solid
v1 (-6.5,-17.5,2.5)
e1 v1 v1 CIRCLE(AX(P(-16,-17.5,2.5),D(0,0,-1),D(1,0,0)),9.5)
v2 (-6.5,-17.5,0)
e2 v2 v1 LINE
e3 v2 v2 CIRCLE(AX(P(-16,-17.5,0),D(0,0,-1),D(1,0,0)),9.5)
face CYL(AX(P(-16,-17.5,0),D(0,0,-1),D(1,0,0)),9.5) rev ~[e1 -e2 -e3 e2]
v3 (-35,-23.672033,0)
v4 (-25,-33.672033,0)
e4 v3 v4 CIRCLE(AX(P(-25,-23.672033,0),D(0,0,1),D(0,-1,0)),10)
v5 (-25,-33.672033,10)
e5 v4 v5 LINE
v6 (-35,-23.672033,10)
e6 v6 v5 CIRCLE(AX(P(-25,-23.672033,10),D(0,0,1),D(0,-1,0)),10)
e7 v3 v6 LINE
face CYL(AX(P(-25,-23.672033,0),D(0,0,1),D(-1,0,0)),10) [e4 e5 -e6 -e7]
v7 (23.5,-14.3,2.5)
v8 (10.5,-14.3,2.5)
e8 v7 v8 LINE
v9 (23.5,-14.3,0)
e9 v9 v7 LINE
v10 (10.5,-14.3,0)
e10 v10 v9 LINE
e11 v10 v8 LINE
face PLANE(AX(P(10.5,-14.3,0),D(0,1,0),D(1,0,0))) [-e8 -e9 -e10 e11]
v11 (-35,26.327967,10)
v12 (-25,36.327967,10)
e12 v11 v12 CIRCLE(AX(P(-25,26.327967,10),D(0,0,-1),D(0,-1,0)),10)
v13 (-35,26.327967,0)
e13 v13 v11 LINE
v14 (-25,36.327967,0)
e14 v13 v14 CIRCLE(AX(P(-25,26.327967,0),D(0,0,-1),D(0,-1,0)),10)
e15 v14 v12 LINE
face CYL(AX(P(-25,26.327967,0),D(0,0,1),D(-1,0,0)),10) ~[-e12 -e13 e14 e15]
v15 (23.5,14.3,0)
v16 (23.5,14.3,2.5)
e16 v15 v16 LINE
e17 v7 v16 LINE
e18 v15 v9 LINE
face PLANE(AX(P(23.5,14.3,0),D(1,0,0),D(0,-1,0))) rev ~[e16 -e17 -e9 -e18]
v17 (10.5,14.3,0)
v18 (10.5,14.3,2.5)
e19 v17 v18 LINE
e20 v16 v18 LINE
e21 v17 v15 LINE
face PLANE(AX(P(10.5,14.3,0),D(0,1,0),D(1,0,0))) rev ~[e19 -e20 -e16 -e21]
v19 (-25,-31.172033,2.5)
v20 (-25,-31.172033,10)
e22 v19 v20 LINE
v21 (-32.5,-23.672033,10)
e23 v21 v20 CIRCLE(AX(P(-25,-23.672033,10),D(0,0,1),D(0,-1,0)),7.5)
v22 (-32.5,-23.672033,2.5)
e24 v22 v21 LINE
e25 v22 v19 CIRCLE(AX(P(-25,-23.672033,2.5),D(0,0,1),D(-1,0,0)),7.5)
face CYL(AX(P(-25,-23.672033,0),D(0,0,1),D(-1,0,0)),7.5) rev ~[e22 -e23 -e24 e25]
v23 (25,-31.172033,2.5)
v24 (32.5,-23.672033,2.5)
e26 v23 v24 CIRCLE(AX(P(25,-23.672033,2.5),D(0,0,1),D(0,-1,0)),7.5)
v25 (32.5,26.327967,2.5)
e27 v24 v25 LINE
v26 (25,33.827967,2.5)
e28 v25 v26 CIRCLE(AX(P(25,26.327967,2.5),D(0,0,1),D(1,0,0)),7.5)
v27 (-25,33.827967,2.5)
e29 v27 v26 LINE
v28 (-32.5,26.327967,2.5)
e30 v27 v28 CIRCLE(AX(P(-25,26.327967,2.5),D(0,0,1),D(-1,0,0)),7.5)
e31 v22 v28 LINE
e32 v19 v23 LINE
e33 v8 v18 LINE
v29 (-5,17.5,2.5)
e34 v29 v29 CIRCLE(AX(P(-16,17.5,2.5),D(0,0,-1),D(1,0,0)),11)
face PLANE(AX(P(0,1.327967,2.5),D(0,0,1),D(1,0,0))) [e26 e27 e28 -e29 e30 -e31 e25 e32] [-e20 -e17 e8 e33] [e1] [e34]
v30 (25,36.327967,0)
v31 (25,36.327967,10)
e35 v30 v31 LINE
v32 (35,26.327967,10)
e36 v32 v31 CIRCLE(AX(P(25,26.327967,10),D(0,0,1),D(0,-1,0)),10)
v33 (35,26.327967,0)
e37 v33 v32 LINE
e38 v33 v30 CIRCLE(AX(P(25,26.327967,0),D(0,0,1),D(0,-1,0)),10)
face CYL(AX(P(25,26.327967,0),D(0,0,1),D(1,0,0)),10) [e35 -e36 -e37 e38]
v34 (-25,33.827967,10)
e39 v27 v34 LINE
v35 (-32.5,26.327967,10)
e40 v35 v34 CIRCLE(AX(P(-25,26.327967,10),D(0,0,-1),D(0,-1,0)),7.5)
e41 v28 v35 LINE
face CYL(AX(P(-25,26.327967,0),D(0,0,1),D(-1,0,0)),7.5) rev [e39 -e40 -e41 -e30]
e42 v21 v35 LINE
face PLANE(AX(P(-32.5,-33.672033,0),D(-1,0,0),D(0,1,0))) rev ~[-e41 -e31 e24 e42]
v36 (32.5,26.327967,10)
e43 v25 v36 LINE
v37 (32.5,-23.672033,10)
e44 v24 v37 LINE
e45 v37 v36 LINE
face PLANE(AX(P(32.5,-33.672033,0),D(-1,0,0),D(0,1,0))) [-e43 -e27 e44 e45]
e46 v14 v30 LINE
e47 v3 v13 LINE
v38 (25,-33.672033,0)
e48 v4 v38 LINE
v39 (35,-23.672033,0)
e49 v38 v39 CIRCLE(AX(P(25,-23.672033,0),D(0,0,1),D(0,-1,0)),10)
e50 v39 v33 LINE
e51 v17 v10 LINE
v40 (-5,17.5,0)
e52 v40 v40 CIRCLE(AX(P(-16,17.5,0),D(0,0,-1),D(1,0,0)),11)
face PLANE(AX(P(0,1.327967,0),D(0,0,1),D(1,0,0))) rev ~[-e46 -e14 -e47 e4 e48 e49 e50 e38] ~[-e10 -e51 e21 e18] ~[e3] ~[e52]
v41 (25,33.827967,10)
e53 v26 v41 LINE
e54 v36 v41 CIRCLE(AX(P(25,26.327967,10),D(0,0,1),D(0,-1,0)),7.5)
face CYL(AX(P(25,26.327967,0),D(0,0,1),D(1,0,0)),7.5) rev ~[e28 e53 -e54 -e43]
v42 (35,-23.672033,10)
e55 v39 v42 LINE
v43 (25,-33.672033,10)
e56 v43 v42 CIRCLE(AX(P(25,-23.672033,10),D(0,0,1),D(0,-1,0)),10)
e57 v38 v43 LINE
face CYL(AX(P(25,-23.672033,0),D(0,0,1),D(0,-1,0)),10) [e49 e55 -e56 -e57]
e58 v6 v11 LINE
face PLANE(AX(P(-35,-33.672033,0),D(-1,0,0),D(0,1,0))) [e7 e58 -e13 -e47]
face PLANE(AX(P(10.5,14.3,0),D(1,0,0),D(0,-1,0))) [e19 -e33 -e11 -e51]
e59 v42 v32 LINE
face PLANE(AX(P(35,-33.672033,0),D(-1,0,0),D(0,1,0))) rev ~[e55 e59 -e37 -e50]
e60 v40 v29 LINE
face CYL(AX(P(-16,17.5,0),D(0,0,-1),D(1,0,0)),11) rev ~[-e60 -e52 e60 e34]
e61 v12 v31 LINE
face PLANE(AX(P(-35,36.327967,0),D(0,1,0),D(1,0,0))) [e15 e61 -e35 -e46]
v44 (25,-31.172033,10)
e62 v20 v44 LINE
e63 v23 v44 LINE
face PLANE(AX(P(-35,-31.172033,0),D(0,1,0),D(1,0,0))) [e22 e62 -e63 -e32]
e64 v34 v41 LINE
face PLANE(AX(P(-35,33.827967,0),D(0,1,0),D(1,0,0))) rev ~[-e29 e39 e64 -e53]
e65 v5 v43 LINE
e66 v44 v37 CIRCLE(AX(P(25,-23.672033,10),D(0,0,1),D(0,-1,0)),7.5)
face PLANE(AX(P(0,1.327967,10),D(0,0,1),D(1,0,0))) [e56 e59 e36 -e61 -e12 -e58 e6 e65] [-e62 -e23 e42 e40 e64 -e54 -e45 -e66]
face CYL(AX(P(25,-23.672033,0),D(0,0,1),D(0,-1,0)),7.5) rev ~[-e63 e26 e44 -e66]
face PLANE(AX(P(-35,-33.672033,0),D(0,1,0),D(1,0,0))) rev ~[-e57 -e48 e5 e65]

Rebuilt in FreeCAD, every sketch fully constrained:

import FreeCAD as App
import Part
import Sketcher
Q = App.Units.Quantity


def edges_at(feature, points):
    """Names of the edges that pass closest to the given points."""
    edges = feature.Shape.Edges
    near = lambda p: min(range(len(edges)), key=lambda i: edges[i].distToShape(Part.Vertex(*p))[0])
    return sorted({f"Edge{near(p) + 1}" for p in points})


def faces_at(feature, points):
    """Names of the faces that lie closest to the given points."""
    faces = feature.Shape.Faces
    near = lambda p: min(range(len(faces)), key=lambda i: faces[i].distToShape(Part.Vertex(*p))[0])
    return sorted({f"Face{near(p) + 1}" for p in points})

doc = App.newDocument("Part")
params = doc.addObject("Spreadsheet::Sheet", "Params")
for row, (alias, value) in enumerate([
    ("sketch1_width", "70 mm"),
    ("pad1_length", "10 mm"),
    ("fillet_radius", "10 mm"),
    ("thickness_wall", "2.5 mm"),
    ("sketch2_diameter", "22 mm"),
    ("sketch2_diameter2", "19 mm"),
    ("sketch2_width", "13 mm"),
    ("sketch2_height", "28.6 mm"),
    ("pocket1_length", "25 mm"),
], start=1):
    params.set(f"A{row}", alias)
    params.set(f"B{row}", "=" + value)
    params.setAlias(f"B{row}", alias)

body = doc.addObject("PartDesign::Body", "Body")

sketch1 = body.newObject("Sketcher::SketchObject", "Sketch")
sketch1.AttachmentSupport = (doc.getObject("XY_Plane"), [""])
sketch1.MapMode = "FlatFace"
sketch1.addGeometry([
    Part.LineSegment(App.Vector(-35, 36, 0), App.Vector(-35, -34, 0)),
    Part.LineSegment(App.Vector(-35, -34, 0), App.Vector(35, -34, 0)),
    Part.LineSegment(App.Vector(35, -34, 0), App.Vector(35, 36, 0)),
    Part.LineSegment(App.Vector(35, 36, 0), App.Vector(-35, 36, 0)),
], False)
sketch1.addConstraint([
    Sketcher.Constraint("Coincident", 0, 2, 1, 1),
    Sketcher.Constraint("Coincident", 1, 2, 2, 1),
    Sketcher.Constraint("Coincident", 2, 2, 3, 1),
    Sketcher.Constraint("Coincident", 3, 2, 0, 1),
    Sketcher.Constraint("Vertical", 0),
    Sketcher.Constraint("Horizontal", 1),
    Sketcher.Constraint("Vertical", 2),
    Sketcher.Constraint("Horizontal", 3),
    Sketcher.Constraint("Equal", 3, 0),
    Sketcher.Constraint("DistanceX", 1, 1, 1, 2, Q("70 mm")),
    Sketcher.Constraint("DistanceX", 0, 2, -1, 1, Q("35 mm")),
    Sketcher.Constraint("DistanceY", 0, 2, -1, 1, Q("33.672033 mm")),
])
sketch1.setExpression("Constraints[9]", "Params.sketch1_width")
pad1 = body.newObject("PartDesign::Pad", "Pad")
pad1.Profile = sketch1
pad1.setExpression("Length", "Params.pad1_length")
doc.recompute()

fillet = body.newObject("PartDesign::Fillet", "Fillet")
fillet.Base = (pad1, edges_at(pad1, [
    (35, 36.328, 5),
    (35, -33.672, 5),
    (-35, 36.328, 5),
    (-35, -33.672, 5),
]))
fillet.setExpression("Radius", "Params.fillet_radius")
doc.recompute()

thickness = body.newObject("PartDesign::Thickness", "Thickness")
thickness.Base = (fillet, faces_at(fillet, [(0, 1.328, 10)]))
thickness.setExpression("Value", "Params.thickness_wall")
thickness.Reversed = True
thickness.Join = "Arc"

sketch2 = body.newObject("Sketcher::SketchObject", "Sketch001")
sketch2.AttachmentSupport = (doc.getObject("XY_Plane"), [""])
sketch2.MapMode = "FlatFace"
sketch2.addGeometry([
    Part.LineSegment(App.Vector(10, -14, 0), App.Vector(10, 14, 0)),
    Part.LineSegment(App.Vector(10, 14, 0), App.Vector(24, 14, 0)),
    Part.LineSegment(App.Vector(24, 14, 0), App.Vector(24, -14, 0)),
    Part.LineSegment(App.Vector(24, -14, 0), App.Vector(10, -14, 0)),
    Part.Circle(App.Vector(-16, 18, 0), App.Vector(0, 0, 1), 11),
    Part.Circle(App.Vector(-16, -18, 0), App.Vector(0, 0, 1), 10),
], False)
sketch2.addConstraint([
    Sketcher.Constraint("Coincident", 0, 2, 1, 1),
    Sketcher.Constraint("Coincident", 1, 2, 2, 1),
    Sketcher.Constraint("Coincident", 2, 2, 3, 1),
    Sketcher.Constraint("Coincident", 3, 2, 0, 1),
    Sketcher.Constraint("Vertical", 0),
    Sketcher.Constraint("Horizontal", 1),
    Sketcher.Constraint("Vertical", 2),
    Sketcher.Constraint("Horizontal", 3),
    Sketcher.Constraint("Symmetric", 4, 3, 5, 3, -1),
    Sketcher.Constraint("Diameter", 4, Q("22 mm")),
    Sketcher.Constraint("Diameter", 5, Q("19 mm")),
    Sketcher.Constraint("DistanceX", 1, 1, 1, 2, Q("13 mm")),
    Sketcher.Constraint("DistanceY", 0, 1, 0, 2, Q("28.6 mm")),
    Sketcher.Constraint("DistanceX", 4, 3, -1, 1, Q("16 mm")),
    Sketcher.Constraint("DistanceY", 5, 3, 4, 3, Q("35 mm")),
    Sketcher.Constraint("DistanceX", -1, 1, 0, 2, Q("10.5 mm")),
    Sketcher.Constraint("DistanceY", -1, 1, 0, 2, Q("14.3 mm")),
])
sketch2.setExpression("Constraints[9]", "Params.sketch2_diameter")
sketch2.setExpression("Constraints[10]", "Params.sketch2_diameter2")
sketch2.setExpression("Constraints[11]", "Params.sketch2_width")
sketch2.setExpression("Constraints[12]", "Params.sketch2_height")
pocket1 = body.newObject("PartDesign::Pocket", "Pocket")
pocket1.Profile = sketch2
pocket1.setExpression("Length", "Params.pocket1_length")
pocket1.Reversed = True

doc.recompute()
